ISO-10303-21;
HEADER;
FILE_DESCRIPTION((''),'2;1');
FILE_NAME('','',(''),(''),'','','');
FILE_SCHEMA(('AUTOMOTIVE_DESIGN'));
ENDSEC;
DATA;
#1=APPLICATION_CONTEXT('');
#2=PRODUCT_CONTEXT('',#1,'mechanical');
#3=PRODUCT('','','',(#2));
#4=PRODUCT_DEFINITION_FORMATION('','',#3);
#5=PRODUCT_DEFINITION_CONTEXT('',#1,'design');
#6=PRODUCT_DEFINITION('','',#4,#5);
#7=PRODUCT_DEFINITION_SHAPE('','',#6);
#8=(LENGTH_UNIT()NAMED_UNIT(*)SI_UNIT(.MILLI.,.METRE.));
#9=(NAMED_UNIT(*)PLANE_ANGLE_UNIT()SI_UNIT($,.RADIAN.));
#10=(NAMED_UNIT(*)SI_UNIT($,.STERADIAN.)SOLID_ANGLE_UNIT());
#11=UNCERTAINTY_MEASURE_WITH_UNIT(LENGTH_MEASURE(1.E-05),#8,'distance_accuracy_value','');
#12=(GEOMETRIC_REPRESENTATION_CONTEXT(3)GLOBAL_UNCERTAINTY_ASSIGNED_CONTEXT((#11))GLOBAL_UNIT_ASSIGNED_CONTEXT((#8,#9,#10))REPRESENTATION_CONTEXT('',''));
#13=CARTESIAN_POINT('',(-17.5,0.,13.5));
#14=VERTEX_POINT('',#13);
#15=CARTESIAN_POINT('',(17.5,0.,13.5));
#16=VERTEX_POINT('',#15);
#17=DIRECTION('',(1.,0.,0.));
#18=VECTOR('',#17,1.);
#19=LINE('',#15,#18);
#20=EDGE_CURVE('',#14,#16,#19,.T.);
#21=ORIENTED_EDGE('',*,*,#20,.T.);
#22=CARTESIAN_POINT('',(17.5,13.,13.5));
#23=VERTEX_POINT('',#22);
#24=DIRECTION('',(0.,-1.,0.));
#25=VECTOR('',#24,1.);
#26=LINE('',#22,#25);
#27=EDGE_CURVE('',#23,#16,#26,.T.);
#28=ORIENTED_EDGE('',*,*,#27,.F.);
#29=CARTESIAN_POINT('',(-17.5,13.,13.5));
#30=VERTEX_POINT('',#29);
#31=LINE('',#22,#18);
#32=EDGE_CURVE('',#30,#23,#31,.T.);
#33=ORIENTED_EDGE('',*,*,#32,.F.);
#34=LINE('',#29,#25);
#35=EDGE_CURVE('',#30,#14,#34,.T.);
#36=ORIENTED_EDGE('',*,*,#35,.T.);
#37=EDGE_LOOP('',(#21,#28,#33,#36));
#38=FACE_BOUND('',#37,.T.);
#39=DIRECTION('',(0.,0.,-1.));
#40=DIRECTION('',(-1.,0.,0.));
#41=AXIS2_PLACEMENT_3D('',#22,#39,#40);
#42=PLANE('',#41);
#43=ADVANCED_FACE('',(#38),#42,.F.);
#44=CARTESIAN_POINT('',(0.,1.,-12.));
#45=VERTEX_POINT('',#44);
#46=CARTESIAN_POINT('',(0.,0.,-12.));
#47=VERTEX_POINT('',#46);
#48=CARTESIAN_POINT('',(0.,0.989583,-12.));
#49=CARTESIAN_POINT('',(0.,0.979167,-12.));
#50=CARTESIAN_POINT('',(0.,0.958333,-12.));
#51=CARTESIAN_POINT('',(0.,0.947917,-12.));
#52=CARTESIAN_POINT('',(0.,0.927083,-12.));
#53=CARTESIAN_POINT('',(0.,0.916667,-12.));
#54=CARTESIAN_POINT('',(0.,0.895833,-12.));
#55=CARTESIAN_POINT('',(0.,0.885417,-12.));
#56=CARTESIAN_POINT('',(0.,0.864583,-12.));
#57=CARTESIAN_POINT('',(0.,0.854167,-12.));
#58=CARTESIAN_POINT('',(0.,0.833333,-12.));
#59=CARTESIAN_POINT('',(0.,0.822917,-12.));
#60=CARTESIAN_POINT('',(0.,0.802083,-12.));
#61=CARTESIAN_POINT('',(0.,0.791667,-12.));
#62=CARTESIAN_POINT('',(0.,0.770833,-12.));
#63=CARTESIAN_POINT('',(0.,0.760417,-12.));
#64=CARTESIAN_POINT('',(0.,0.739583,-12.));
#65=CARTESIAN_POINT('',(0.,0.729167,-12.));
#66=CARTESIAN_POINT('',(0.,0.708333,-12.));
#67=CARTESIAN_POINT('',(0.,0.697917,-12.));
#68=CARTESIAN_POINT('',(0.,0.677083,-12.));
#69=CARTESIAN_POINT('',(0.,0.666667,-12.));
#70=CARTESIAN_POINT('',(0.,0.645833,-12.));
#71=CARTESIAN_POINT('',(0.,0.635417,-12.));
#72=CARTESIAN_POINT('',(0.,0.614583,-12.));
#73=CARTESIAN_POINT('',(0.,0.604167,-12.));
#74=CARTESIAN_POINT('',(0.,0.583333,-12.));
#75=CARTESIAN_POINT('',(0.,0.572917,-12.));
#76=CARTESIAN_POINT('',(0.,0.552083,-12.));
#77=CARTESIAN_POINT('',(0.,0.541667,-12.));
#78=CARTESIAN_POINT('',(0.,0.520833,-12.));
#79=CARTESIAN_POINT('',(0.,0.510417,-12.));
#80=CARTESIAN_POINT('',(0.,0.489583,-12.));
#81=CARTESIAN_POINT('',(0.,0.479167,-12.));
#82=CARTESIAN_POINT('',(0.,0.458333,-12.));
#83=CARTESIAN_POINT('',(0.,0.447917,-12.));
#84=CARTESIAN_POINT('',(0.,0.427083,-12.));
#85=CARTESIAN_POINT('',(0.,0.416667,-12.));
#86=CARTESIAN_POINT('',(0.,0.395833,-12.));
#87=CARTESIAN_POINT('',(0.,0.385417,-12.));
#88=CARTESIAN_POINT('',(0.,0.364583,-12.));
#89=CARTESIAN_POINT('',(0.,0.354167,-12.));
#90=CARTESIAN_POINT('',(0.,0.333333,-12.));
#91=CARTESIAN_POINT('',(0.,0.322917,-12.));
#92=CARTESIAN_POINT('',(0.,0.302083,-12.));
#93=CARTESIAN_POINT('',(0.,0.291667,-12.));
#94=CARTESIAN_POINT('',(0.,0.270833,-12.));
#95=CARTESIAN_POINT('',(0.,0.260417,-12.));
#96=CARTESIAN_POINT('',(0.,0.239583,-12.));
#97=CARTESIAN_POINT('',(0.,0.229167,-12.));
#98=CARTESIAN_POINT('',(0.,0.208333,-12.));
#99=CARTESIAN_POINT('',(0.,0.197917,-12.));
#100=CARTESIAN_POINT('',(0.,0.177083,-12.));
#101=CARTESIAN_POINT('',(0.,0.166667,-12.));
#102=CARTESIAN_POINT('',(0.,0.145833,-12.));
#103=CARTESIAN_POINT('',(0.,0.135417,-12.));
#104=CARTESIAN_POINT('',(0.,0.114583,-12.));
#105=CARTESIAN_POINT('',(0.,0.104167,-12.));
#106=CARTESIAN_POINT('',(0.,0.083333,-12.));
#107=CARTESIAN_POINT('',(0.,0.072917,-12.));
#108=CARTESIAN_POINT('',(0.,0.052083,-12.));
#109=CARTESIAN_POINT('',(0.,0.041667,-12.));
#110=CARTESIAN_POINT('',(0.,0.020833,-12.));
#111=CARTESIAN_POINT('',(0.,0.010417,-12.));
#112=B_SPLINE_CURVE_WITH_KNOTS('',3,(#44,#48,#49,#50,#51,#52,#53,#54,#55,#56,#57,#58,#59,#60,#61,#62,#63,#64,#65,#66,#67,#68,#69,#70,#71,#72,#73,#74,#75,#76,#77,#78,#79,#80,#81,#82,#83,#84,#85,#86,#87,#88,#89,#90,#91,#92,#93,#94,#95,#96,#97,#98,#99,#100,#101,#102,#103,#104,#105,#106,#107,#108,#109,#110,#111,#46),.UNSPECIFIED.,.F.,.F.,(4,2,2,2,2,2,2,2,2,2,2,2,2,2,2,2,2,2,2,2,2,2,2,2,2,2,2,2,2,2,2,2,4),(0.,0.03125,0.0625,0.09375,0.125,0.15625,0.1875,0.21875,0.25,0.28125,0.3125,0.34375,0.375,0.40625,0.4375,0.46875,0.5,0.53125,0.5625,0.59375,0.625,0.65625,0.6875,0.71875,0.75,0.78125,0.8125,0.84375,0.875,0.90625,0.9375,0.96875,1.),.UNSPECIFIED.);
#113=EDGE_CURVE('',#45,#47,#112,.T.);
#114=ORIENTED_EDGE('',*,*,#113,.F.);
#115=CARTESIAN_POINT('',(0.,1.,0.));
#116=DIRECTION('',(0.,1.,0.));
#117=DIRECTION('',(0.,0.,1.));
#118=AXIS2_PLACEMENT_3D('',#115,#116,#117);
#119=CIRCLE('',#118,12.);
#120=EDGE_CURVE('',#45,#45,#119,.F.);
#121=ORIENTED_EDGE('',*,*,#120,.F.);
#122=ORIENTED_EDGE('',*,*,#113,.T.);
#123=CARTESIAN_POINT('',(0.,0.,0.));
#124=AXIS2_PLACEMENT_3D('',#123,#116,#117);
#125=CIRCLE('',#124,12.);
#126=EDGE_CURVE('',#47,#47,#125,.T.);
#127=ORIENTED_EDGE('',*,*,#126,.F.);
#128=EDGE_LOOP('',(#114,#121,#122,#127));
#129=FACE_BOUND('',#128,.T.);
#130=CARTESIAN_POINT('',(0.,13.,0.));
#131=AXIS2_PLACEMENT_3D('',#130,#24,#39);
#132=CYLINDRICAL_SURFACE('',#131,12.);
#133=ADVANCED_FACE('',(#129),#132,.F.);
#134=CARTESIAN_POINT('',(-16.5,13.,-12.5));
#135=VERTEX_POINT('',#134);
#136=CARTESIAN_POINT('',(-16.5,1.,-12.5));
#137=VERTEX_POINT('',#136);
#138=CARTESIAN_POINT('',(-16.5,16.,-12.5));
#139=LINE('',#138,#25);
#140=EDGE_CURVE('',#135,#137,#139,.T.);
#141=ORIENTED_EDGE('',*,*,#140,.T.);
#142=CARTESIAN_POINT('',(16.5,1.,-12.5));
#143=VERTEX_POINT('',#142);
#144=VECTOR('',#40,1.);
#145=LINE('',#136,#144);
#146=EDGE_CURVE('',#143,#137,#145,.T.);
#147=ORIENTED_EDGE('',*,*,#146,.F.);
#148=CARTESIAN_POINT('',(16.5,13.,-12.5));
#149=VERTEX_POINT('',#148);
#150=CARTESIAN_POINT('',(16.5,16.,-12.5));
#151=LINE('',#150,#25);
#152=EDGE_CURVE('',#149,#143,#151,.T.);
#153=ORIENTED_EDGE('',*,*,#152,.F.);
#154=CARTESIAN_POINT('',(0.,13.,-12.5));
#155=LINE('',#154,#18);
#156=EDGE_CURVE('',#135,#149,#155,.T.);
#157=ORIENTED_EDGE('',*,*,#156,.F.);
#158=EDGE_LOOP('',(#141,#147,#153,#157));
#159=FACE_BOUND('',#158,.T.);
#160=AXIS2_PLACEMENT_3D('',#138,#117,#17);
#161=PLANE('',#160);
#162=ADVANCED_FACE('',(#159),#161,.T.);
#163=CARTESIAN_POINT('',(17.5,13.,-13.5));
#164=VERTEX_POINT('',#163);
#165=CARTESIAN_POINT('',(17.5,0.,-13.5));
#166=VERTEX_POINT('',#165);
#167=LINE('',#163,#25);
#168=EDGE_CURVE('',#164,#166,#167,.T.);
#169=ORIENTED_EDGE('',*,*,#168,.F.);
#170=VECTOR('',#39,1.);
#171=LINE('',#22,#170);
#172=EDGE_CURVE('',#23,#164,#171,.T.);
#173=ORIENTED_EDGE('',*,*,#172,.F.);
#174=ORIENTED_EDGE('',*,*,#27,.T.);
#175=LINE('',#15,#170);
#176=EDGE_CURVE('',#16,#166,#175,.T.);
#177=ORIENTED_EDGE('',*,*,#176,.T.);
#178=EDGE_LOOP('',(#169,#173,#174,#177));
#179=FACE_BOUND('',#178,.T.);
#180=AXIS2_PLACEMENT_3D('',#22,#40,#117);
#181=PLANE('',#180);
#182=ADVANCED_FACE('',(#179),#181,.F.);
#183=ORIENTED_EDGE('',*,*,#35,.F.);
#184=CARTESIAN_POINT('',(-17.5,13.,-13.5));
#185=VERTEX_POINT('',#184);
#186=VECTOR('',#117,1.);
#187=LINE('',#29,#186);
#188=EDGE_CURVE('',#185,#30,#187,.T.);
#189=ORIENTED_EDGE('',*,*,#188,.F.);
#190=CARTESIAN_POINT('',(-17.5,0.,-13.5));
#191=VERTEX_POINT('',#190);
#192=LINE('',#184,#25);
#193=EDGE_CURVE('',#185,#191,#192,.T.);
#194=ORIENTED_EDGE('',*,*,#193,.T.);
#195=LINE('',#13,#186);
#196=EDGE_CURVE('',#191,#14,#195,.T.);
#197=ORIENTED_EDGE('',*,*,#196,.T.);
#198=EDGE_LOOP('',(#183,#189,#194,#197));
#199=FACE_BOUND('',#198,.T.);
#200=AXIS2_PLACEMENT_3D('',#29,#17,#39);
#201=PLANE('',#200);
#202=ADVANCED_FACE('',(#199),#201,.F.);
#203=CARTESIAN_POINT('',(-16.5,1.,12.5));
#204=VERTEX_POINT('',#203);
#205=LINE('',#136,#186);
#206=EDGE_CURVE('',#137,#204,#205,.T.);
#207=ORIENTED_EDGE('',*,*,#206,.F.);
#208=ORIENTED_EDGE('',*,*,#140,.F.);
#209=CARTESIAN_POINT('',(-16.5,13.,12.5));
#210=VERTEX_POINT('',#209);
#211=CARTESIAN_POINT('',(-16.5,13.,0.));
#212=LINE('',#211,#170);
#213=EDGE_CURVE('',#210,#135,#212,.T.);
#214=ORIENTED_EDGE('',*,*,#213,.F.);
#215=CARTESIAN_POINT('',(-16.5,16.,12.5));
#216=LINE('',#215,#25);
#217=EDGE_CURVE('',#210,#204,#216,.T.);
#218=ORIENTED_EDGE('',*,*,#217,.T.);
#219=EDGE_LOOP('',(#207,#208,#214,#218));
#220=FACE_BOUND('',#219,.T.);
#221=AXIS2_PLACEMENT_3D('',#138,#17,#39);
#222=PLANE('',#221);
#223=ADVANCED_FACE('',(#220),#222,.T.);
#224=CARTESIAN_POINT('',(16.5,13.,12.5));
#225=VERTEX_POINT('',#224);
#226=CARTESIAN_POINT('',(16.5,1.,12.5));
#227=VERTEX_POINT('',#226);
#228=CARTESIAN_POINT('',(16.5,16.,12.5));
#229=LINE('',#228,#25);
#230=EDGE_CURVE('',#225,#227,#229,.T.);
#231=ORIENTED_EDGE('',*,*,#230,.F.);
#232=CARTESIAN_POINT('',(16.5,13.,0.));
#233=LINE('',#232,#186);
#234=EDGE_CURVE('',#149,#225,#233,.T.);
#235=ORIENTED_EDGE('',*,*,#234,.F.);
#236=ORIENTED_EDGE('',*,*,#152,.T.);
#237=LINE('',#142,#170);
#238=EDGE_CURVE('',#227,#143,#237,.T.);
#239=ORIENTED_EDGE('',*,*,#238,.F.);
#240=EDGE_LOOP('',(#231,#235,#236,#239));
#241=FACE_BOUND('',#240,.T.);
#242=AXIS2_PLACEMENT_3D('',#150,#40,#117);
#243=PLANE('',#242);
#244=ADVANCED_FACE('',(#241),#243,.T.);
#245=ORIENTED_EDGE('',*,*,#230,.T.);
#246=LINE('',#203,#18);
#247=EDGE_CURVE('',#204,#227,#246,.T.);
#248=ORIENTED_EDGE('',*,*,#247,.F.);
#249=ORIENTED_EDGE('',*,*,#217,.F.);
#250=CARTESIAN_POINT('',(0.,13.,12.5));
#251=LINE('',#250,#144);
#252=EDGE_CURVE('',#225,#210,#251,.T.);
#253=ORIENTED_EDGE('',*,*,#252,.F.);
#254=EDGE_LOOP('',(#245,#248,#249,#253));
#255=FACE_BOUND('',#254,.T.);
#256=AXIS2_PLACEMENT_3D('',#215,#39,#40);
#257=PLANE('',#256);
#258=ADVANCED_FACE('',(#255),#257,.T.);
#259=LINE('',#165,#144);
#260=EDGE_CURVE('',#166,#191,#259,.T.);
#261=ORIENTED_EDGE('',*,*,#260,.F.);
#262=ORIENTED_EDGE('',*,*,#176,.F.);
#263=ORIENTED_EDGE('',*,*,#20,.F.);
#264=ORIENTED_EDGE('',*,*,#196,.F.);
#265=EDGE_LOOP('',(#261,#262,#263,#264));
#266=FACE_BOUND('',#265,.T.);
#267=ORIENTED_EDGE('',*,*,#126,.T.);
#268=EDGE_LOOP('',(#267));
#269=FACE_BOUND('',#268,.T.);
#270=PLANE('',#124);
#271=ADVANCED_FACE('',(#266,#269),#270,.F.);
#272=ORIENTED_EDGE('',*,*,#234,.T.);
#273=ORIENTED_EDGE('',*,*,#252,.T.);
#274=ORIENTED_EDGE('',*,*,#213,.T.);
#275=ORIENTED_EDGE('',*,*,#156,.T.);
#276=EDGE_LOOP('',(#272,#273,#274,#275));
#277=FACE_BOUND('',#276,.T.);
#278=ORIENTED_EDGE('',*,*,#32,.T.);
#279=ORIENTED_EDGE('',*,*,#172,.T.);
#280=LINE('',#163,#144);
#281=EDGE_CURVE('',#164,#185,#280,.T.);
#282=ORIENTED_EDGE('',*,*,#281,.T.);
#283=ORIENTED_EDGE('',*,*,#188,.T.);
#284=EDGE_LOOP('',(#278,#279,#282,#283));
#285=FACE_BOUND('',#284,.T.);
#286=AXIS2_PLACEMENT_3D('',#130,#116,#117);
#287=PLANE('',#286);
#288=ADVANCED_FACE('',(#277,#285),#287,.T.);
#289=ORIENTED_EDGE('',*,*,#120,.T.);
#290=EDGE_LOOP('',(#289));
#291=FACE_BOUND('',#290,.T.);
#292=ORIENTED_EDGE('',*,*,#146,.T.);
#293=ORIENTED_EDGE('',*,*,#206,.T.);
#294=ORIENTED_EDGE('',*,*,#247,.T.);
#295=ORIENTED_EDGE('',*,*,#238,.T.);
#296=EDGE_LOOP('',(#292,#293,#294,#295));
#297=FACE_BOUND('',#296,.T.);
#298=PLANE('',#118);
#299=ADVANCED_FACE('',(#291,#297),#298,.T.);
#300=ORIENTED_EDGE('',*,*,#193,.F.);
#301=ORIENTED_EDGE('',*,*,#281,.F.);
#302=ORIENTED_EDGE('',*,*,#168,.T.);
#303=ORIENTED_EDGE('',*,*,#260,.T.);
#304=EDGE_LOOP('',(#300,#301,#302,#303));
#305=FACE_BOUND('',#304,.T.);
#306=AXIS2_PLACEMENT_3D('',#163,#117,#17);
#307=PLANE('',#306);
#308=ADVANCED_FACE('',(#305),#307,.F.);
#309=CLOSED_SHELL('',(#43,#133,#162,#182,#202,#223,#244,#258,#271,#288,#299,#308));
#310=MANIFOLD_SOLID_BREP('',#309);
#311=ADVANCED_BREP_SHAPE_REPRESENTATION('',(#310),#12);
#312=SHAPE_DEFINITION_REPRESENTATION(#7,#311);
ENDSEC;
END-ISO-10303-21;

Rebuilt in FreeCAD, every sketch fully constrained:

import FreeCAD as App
import Part
import Sketcher

V = App.Vector
Q = App.Units.Quantity

doc = App.newDocument("Part")
params = doc.addObject("Spreadsheet::Sheet", "Params")
for row, (alias, value) in enumerate([
    ("sketch1_width", "35 mm"),
    ("sketch1_height", "27 mm"),
    ("pad1_length", "13 mm"),
    ("sketch2_width", "33 mm"),
    ("sketch2_height", "25 mm"),
    ("pocket1_length", "15 mm"),
    ("sketch3_diameter", "24 mm"),
], start=1):
    params.set(f"A{row}", alias)
    params.set(f"B{row}", "=" + value)
    params.setAlias(f"B{row}", alias)

body = doc.addObject("PartDesign::Body", "Body")

# Sketch on XZ plane
sketch1 = doc.addObject("Sketcher::SketchObject", "Sketch")
body.addObject(sketch1)
sketch1.AttachmentSupport = (doc.XZ_Plane, [""])
sketch1.MapMode = "FlatFace"
sketch1.addGeometry([
    Part.LineSegment(V(-18, -14, 0), V(-18, 14, 0)),
    Part.LineSegment(V(-18, 14, 0), V(18, 14, 0)),
    Part.LineSegment(V(18, 14, 0), V(18, -14, 0)),
    Part.LineSegment(V(18, -14, 0), V(-18, -14, 0)),
], False)
sketch1.addConstraint([
    Sketcher.Constraint("Coincident", 0, 2, 1, 1),
    Sketcher.Constraint("Coincident", 1, 2, 2, 1),
    Sketcher.Constraint("Coincident", 2, 2, 3, 1),
    Sketcher.Constraint("Coincident", 3, 2, 0, 1),
    Sketcher.Constraint("Vertical", 0),
    Sketcher.Constraint("Horizontal", 1),
    Sketcher.Constraint("Vertical", 2),
    Sketcher.Constraint("Horizontal", 3),
    Sketcher.Constraint("Symmetric", 0, 2, 2, 2, -1, 1),
    Sketcher.Constraint("DistanceX", 1, 1, 1, 2, Q("35 mm")),
    Sketcher.Constraint("DistanceY", 0, 1, 0, 2, Q("27 mm")),
])
sketch1.setExpression("Constraints[9]", "Params.sketch1_width")
sketch1.setExpression("Constraints[10]", "Params.sketch1_height")
pad1 = doc.addObject("PartDesign::Pad", "Pad")
body.addObject(pad1)
pad1.Profile = sketch1
pad1.setExpression("Length", "Params.pad1_length")
pad1.Reversed = True

# Sketch on XZ plane
sketch2 = doc.addObject("Sketcher::SketchObject", "Sketch001")
body.addObject(sketch2)
sketch2.AttachmentSupport = (doc.XZ_Plane, [""])
sketch2.MapMode = "FlatFace"
sketch2.AttachmentOffset = App.Placement(V(0, 0, -1), App.Rotation())
sketch2.addGeometry([
    Part.LineSegment(V(-16, -12, 0), V(-16, 12, 0)),
    Part.LineSegment(V(-16, 12, 0), V(16, 12, 0)),
    Part.LineSegment(V(16, 12, 0), V(16, -12, 0)),
    Part.LineSegment(V(16, -12, 0), V(-16, -12, 0)),
], False)
sketch2.addConstraint([
    Sketcher.Constraint("Coincident", 0, 2, 1, 1),
    Sketcher.Constraint("Coincident", 1, 2, 2, 1),
    Sketcher.Constraint("Coincident", 2, 2, 3, 1),
    Sketcher.Constraint("Coincident", 3, 2, 0, 1),
    Sketcher.Constraint("Vertical", 0),
    Sketcher.Constraint("Horizontal", 1),
    Sketcher.Constraint("Vertical", 2),
    Sketcher.Constraint("Horizontal", 3),
    Sketcher.Constraint("Symmetric", 0, 2, 2, 2, -1, 1),
    Sketcher.Constraint("DistanceX", 1, 1, 1, 2, Q("33 mm")),
    Sketcher.Constraint("DistanceY", 0, 1, 0, 2, Q("25 mm")),
])
sketch2.setExpression("Constraints[9]", "Params.sketch2_width")
sketch2.setExpression("Constraints[10]", "Params.sketch2_height")
pocket1 = doc.addObject("PartDesign::Pocket", "Pocket")
body.addObject(pocket1)
pocket1.Profile = sketch2
pocket1.setExpression("Length", "Params.pocket1_length")

# Sketch on XZ plane
sketch3 = doc.addObject("Sketcher::SketchObject", "Sketch002")
body.addObject(sketch3)
sketch3.AttachmentSupport = (doc.XZ_Plane, [""])
sketch3.MapMode = "FlatFace"
sketch3.addGeometry(Part.Circle(V(0, 0, 0), V(0, 0, 1), 12), False)
sketch3.addConstraint([
    Sketcher.Constraint("Coincident", 0, 3, -1, 1),
    Sketcher.Constraint("Diameter", 0, Q("24 mm")),
])
sketch3.setExpression("Constraints[1]", "Params.sketch3_diameter")
pocket2 = doc.addObject("PartDesign::Pocket", "Pocket001")
body.addObject(pocket2)
pocket2.Profile = sketch3
pocket2.Type = "ThroughAll"

doc.recompute()
